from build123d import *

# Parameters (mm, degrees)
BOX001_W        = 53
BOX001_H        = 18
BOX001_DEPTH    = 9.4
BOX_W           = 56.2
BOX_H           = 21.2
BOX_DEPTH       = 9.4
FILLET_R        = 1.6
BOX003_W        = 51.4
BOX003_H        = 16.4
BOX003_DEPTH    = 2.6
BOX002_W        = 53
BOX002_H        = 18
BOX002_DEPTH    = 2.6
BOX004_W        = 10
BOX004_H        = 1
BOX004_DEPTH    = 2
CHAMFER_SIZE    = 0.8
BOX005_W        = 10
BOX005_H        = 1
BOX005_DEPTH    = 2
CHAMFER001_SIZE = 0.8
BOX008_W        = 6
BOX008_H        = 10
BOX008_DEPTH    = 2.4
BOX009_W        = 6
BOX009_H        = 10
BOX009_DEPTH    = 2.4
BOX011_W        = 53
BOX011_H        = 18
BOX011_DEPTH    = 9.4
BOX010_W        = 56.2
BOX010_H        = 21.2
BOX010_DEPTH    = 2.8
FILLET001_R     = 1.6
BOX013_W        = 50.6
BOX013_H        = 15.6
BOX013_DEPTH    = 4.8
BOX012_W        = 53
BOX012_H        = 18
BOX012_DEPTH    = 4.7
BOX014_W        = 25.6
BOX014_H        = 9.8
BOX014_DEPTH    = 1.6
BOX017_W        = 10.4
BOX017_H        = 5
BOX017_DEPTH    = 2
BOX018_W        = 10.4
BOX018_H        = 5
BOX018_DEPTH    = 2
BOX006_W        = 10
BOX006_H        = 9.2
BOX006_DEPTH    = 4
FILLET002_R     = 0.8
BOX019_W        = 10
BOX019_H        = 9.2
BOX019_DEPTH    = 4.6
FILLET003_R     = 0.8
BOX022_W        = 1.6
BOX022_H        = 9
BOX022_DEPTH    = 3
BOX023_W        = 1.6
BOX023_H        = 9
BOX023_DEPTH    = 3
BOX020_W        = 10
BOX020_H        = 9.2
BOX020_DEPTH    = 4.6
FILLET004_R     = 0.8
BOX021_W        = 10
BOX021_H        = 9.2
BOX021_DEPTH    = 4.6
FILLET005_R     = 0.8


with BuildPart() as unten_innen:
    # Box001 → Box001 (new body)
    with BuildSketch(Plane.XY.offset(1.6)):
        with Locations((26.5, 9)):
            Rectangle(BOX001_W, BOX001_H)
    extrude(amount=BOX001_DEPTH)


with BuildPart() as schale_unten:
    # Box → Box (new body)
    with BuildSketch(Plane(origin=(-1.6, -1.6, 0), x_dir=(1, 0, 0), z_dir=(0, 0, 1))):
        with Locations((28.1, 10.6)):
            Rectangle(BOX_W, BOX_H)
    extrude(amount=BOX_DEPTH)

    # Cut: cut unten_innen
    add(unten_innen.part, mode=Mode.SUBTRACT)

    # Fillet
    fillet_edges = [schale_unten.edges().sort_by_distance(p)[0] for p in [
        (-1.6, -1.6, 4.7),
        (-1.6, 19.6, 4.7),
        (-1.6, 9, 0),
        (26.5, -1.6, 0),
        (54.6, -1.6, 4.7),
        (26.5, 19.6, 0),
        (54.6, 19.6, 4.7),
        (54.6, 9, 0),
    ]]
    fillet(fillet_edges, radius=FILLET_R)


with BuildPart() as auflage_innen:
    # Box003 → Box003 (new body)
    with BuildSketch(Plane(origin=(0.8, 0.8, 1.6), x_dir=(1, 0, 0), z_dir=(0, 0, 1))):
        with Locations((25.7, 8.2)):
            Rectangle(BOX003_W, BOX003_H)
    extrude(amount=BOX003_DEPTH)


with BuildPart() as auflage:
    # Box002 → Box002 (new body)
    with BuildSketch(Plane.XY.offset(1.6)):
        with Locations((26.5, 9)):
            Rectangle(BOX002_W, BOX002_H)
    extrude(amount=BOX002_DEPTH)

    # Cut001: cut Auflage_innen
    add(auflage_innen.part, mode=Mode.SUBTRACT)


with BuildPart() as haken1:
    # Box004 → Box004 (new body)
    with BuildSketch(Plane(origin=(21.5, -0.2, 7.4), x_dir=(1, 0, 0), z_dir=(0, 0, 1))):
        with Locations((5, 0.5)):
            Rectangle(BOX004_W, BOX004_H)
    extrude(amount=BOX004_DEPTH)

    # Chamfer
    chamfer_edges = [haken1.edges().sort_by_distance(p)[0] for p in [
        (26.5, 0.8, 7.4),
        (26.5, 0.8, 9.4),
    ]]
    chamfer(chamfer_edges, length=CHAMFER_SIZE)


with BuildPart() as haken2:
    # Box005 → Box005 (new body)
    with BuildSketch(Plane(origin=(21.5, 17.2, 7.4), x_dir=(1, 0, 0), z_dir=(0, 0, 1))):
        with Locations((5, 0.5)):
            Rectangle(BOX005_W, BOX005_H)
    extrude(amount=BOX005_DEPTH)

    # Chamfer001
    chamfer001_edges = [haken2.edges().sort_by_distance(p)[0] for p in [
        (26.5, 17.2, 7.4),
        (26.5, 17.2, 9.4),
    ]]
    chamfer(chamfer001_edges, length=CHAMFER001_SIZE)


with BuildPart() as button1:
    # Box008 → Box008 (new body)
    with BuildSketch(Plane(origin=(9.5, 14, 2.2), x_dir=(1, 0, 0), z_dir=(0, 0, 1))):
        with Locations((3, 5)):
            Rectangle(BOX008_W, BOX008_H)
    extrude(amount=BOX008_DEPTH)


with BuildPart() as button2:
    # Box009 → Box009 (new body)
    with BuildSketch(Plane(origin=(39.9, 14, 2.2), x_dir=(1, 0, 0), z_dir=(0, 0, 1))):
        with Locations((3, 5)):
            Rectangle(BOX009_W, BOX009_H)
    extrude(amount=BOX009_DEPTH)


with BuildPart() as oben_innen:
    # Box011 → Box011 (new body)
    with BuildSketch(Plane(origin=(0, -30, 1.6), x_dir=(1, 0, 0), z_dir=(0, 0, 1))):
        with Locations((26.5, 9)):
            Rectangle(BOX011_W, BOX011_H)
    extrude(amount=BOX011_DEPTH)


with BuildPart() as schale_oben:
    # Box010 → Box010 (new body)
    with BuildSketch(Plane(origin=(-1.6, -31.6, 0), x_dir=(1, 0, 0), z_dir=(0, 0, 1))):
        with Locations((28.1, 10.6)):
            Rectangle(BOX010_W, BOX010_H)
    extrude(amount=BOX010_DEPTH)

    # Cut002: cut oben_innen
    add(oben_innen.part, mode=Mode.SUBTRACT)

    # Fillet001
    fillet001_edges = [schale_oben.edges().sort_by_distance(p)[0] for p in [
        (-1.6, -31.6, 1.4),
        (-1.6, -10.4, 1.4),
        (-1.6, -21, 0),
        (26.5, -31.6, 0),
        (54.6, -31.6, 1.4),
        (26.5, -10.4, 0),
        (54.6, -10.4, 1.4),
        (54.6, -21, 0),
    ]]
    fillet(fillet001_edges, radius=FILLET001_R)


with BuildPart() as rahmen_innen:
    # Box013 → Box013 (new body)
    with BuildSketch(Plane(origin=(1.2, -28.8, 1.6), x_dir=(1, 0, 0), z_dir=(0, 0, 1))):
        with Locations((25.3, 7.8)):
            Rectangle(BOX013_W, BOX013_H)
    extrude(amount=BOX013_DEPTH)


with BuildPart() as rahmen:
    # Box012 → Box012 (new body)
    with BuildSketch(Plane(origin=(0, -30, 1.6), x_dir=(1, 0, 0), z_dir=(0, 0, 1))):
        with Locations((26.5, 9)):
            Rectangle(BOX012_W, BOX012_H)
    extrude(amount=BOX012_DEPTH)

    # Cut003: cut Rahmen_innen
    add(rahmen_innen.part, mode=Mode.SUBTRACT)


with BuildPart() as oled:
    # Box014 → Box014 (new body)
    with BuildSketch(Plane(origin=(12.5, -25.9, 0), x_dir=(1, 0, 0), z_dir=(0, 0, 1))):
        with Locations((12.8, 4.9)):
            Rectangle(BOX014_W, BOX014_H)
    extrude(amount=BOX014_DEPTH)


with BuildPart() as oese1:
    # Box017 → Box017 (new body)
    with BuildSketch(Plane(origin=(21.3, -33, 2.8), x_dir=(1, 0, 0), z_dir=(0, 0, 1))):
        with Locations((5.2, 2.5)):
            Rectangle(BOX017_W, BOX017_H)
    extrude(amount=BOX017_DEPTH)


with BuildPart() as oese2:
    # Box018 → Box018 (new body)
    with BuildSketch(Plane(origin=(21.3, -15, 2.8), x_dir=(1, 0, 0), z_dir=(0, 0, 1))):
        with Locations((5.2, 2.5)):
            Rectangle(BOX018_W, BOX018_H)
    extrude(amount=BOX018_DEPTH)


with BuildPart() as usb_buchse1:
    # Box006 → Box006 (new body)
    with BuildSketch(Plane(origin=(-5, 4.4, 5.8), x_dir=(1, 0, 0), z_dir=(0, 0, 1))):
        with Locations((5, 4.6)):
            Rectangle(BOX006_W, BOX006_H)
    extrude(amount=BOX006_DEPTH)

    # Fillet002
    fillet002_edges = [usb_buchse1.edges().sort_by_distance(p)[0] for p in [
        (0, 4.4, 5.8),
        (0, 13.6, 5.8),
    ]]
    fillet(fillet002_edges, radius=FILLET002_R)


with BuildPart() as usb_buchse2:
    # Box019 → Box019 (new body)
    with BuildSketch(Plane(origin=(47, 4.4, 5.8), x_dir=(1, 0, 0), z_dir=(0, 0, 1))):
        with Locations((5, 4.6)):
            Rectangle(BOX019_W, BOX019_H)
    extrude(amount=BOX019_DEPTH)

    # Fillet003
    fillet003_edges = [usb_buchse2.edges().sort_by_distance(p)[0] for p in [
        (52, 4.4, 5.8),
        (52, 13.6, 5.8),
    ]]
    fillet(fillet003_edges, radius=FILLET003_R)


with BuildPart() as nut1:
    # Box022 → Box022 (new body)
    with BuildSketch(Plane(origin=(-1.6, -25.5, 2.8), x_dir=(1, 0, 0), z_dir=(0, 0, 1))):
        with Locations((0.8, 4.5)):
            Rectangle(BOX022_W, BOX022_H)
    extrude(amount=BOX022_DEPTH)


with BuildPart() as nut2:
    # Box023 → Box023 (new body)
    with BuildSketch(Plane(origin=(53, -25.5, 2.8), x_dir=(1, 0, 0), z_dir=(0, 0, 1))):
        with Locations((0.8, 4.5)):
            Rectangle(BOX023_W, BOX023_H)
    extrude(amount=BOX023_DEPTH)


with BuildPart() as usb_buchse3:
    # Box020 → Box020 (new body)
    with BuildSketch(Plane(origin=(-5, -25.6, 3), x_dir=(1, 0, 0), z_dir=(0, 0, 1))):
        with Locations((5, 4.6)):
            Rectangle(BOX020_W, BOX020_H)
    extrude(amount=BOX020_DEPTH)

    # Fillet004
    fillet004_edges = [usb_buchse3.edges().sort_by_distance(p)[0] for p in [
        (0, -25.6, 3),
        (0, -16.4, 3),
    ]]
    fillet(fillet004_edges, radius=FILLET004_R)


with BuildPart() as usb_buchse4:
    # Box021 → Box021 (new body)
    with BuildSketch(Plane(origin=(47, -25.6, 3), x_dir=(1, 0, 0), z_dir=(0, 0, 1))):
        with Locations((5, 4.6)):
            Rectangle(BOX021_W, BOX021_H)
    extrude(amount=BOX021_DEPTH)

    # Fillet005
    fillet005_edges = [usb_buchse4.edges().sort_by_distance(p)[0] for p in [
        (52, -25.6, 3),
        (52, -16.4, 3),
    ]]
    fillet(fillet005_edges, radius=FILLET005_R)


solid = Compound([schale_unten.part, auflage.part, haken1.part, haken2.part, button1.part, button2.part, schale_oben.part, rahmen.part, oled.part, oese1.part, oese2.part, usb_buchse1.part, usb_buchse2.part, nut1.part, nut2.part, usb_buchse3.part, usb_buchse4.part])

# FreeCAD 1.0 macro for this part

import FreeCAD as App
import Part
import Sketcher
Q = App.Units.Quantity


def edges_at(feature, points):
    """Names of the edges that pass closest to the given points."""
    edges = feature.Shape.Edges
    near = lambda p: min(range(len(edges)), key=lambda i: edges[i].distToShape(Part.Vertex(*p))[0])
    return sorted({f"Edge{near(p) + 1}" for p in points})

doc = App.newDocument("Part")
body = doc.addObject("PartDesign::Body", "Body")

# Sketch on XY plane
sketch1 = body.newObject("Sketcher::SketchObject", "Sketch")
sketch1.AttachmentSupport = (doc.getObject("XY_Plane"), [""])
sketch1.MapMode = "FlatFace"
sketch1.AttachmentOffset = App.Placement(App.Vector(0, 0, 1.6), App.Rotation())
sketch1.addGeometry([
    Part.LineSegment(App.Vector(0, 18, 0), App.Vector(0, 0, 0)),
    Part.LineSegment(App.Vector(0, 0, 0), App.Vector(53, 0, 0)),
    Part.LineSegment(App.Vector(53, 0, 0), App.Vector(53, 18, 0)),
    Part.LineSegment(App.Vector(53, 18, 0), App.Vector(0, 18, 0)),
], False)
sketch1.addConstraint([
    Sketcher.Constraint("Coincident", 0, 2, 1, 1),
    Sketcher.Constraint("Coincident", 1, 2, 2, 1),
    Sketcher.Constraint("Coincident", 2, 2, 3, 1),
    Sketcher.Constraint("Coincident", 3, 2, 0, 1),
    Sketcher.Constraint("Vertical", 0),
    Sketcher.Constraint("Horizontal", 1),
    Sketcher.Constraint("Vertical", 2),
    Sketcher.Constraint("Horizontal", 3),
    Sketcher.Constraint("Coincident", 0, 2, -1, 1),
    Sketcher.Constraint("DistanceX", 1, 1, 1, 2, Q("53 mm")),
    Sketcher.Constraint("DistanceY", 0, 2, 0, 1, Q("18 mm")),
])
pad1 = body.newObject("PartDesign::Pad", "Pad")
pad1.Profile = sketch1
pad1.Length = 9.4
body2 = doc.addObject("PartDesign::Body", "Body001")

# Sketch on XY plane
sketch2 = body2.newObject("Sketcher::SketchObject", "Sketch001")
sketch2.AttachmentSupport = (doc.getObject("XY_Plane001"), [""])
sketch2.MapMode = "FlatFace"
sketch2.addGeometry([
    Part.LineSegment(App.Vector(-1.6, 19.6, 0), App.Vector(-1.6, -1.6, 0)),
    Part.LineSegment(App.Vector(-1.6, -1.6, 0), App.Vector(54.6, -1.6, 0)),
    Part.LineSegment(App.Vector(54.6, -1.6, 0), App.Vector(54.6, 19.6, 0)),
    Part.LineSegment(App.Vector(54.6, 19.6, 0), App.Vector(-1.6, 19.6, 0)),
], False)
sketch2.addConstraint([
    Sketcher.Constraint("Coincident", 0, 2, 1, 1),
    Sketcher.Constraint("Coincident", 1, 2, 2, 1),
    Sketcher.Constraint("Coincident", 2, 2, 3, 1),
    Sketcher.Constraint("Coincident", 3, 2, 0, 1),
    Sketcher.Constraint("Vertical", 0),
    Sketcher.Constraint("Horizontal", 1),
    Sketcher.Constraint("Vertical", 2),
    Sketcher.Constraint("Horizontal", 3),
    Sketcher.Constraint("DistanceX", 1, 1, 1, 2, Q("56.2 mm")),
    Sketcher.Constraint("DistanceY", 0, 2, 0, 1, Q("21.2 mm")),
    Sketcher.Constraint("DistanceX", 0, 2, -1, 1, Q("1.6 mm")),
    Sketcher.Constraint("DistanceY", 0, 2, -1, 1, Q("1.6 mm")),
])
pad2 = body2.newObject("PartDesign::Pad", "Pad001")
pad2.Profile = sketch2
pad2.Length = 9.4
doc.recompute()

boolean = body2.newObject("PartDesign::Boolean", "Boolean")
boolean.Type = "Cut"
boolean.addObjects([body])
doc.recompute()

fillet = body2.newObject("PartDesign::Fillet", "Fillet")
fillet.Base = (boolean, edges_at(boolean, [
    (-1.6, -1.6, 4.7),
    (-1.6, 19.6, 4.7),
    (-1.6, 9, 0),
    (26.5, -1.6, 0),
    (54.6, -1.6, 4.7),
    (26.5, 19.6, 0),
    (54.6, 19.6, 4.7),
    (54.6, 9, 0),
]))
fillet.Radius = 1.6
body3 = doc.addObject("PartDesign::Body", "Body002")

# Sketch on XY plane
sketch3 = body3.newObject("Sketcher::SketchObject", "Sketch002")
sketch3.AttachmentSupport = (doc.getObject("XY_Plane002"), [""])
sketch3.MapMode = "FlatFace"
sketch3.AttachmentOffset = App.Placement(App.Vector(0, 0, 1.6), App.Rotation())
sketch3.addGeometry([
    Part.LineSegment(App.Vector(0.8, 17.2, 0), App.Vector(0.8, 0.8, 0)),
    Part.LineSegment(App.Vector(0.8, 0.8, 0), App.Vector(52.2, 0.8, 0)),
    Part.LineSegment(App.Vector(52.2, 0.8, 0), App.Vector(52.2, 17.2, 0)),
    Part.LineSegment(App.Vector(52.2, 17.2, 0), App.Vector(0.8, 17.2, 0)),
], False)
sketch3.addConstraint([
    Sketcher.Constraint("Coincident", 0, 2, 1, 1),
    Sketcher.Constraint("Coincident", 1, 2, 2, 1),
    Sketcher.Constraint("Coincident", 2, 2, 3, 1),
    Sketcher.Constraint("Coincident", 3, 2, 0, 1),
    Sketcher.Constraint("Vertical", 0),
    Sketcher.Constraint("Horizontal", 1),
    Sketcher.Constraint("Vertical", 2),
    Sketcher.Constraint("Horizontal", 3),
    Sketcher.Constraint("DistanceX", 1, 1, 1, 2, Q("51.4 mm")),
    Sketcher.Constraint("DistanceY", 0, 2, 0, 1, Q("16.4 mm")),
    Sketcher.Constraint("DistanceX", -1, 1, 0, 2, Q("0.8 mm")),
    Sketcher.Constraint("DistanceY", -1, 1, 0, 2, Q("0.8 mm")),
])
pad3 = body3.newObject("PartDesign::Pad", "Pad002")
pad3.Profile = sketch3
pad3.Length = 2.6
body4 = doc.addObject("PartDesign::Body", "Body003")

# Sketch on XY plane
sketch4 = body4.newObject("Sketcher::SketchObject", "Sketch003")
sketch4.AttachmentSupport = (doc.getObject("XY_Plane003"), [""])
sketch4.MapMode = "FlatFace"
sketch4.AttachmentOffset = App.Placement(App.Vector(0, 0, 1.6), App.Rotation())
sketch4.addGeometry([
    Part.LineSegment(App.Vector(0, 18, 0), App.Vector(0, 0, 0)),
    Part.LineSegment(App.Vector(0, 0, 0), App.Vector(53, 0, 0)),
    Part.LineSegment(App.Vector(53, 0, 0), App.Vector(53, 18, 0)),
    Part.LineSegment(App.Vector(53, 18, 0), App.Vector(0, 18, 0)),
], False)
sketch4.addConstraint([
    Sketcher.Constraint("Coincident", 0, 2, 1, 1),
    Sketcher.Constraint("Coincident", 1, 2, 2, 1),
    Sketcher.Constraint("Coincident", 2, 2, 3, 1),
    Sketcher.Constraint("Coincident", 3, 2, 0, 1),
    Sketcher.Constraint("Vertical", 0),
    Sketcher.Constraint("Horizontal", 1),
    Sketcher.Constraint("Vertical", 2),
    Sketcher.Constraint("Horizontal", 3),
    Sketcher.Constraint("Coincident", 0, 2, -1, 1),
    Sketcher.Constraint("DistanceX", 1, 1, 1, 2, Q("53 mm")),
    Sketcher.Constraint("DistanceY", 0, 2, 0, 1, Q("18 mm")),
])
pad4 = body4.newObject("PartDesign::Pad", "Pad003")
pad4.Profile = sketch4
pad4.Length = 2.6
doc.recompute()

boolean2 = body4.newObject("PartDesign::Boolean", "Boolean001")
boolean2.Type = "Cut"
boolean2.addObjects([body3])
body5 = doc.addObject("PartDesign::Body", "Body004")

# Sketch on XY plane
sketch5 = body5.newObject("Sketcher::SketchObject", "Sketch004")
sketch5.AttachmentSupport = (doc.getObject("XY_Plane004"), [""])
sketch5.MapMode = "FlatFace"
sketch5.AttachmentOffset = App.Placement(App.Vector(0, 0, 7.4), App.Rotation())
sketch5.addGeometry([
    Part.LineSegment(App.Vector(21.5, 0.8, 0), App.Vector(21.5, -0.2, 0)),
    Part.LineSegment(App.Vector(21.5, -0.2, 0), App.Vector(31.5, -0.2, 0)),
    Part.LineSegment(App.Vector(31.5, -0.2, 0), App.Vector(31.5, 0.8, 0)),
    Part.LineSegment(App.Vector(31.5, 0.8, 0), App.Vector(21.5, 0.8, 0)),
], False)
sketch5.addConstraint([
    Sketcher.Constraint("Coincident", 0, 2, 1, 1),
    Sketcher.Constraint("Coincident", 1, 2, 2, 1),
    Sketcher.Constraint("Coincident", 2, 2, 3, 1),
    Sketcher.Constraint("Coincident", 3, 2, 0, 1),
    Sketcher.Constraint("Vertical", 0),
    Sketcher.Constraint("Horizontal", 1),
    Sketcher.Constraint("Vertical", 2),
    Sketcher.Constraint("Horizontal", 3),
    Sketcher.Constraint("DistanceX", 1, 1, 1, 2, Q("10 mm")),
    Sketcher.Constraint("DistanceY", 0, 2, 0, 1, Q("1 mm")),
    Sketcher.Constraint("DistanceX", -1, 1, 0, 2, Q("21.5 mm")),
    Sketcher.Constraint("DistanceY", 0, 2, -1, 1, Q("0.2 mm")),
])
pad5 = body5.newObject("PartDesign::Pad", "Pad004")
pad5.Profile = sketch5
pad5.Length = 2
doc.recompute()

chamfer = body5.newObject("PartDesign::Chamfer", "Chamfer")
chamfer.Base = (pad5, edges_at(pad5, [(26.5, 0.8, 7.4), (26.5, 0.8, 9.4)]))
chamfer.Size = 0.8
body6 = doc.addObject("PartDesign::Body", "Body005")

# Sketch on XY plane
sketch6 = body6.newObject("Sketcher::SketchObject", "Sketch005")
sketch6.AttachmentSupport = (doc.getObject("XY_Plane005"), [""])
sketch6.MapMode = "FlatFace"
sketch6.AttachmentOffset = App.Placement(App.Vector(0, 0, 7.4), App.Rotation())
sketch6.addGeometry([
    Part.LineSegment(App.Vector(21.5, 18.2, 0), App.Vector(21.5, 17.2, 0)),
    Part.LineSegment(App.Vector(21.5, 17.2, 0), App.Vector(31.5, 17.2, 0)),
    Part.LineSegment(App.Vector(31.5, 17.2, 0), App.Vector(31.5, 18.2, 0)),
    Part.LineSegment(App.Vector(31.5, 18.2, 0), App.Vector(21.5, 18.2, 0)),
], False)
sketch6.addConstraint([
    Sketcher.Constraint("Coincident", 0, 2, 1, 1),
    Sketcher.Constraint("Coincident", 1, 2, 2, 1),
    Sketcher.Constraint("Coincident", 2, 2, 3, 1),
    Sketcher.Constraint("Coincident", 3, 2, 0, 1),
    Sketcher.Constraint("Vertical", 0),
    Sketcher.Constraint("Horizontal", 1),
    Sketcher.Constraint("Vertical", 2),
    Sketcher.Constraint("Horizontal", 3),
    Sketcher.Constraint("DistanceX", 1, 1, 1, 2, Q("10 mm")),
    Sketcher.Constraint("DistanceY", 0, 2, 0, 1, Q("1 mm")),
    Sketcher.Constraint("DistanceX", -1, 1, 0, 2, Q("21.5 mm")),
    Sketcher.Constraint("DistanceY", -1, 1, 0, 2, Q("17.2 mm")),
])
pad6 = body6.newObject("PartDesign::Pad", "Pad005")
pad6.Profile = sketch6
pad6.Length = 2
doc.recompute()

chamfer2 = body6.newObject("PartDesign::Chamfer", "Chamfer001")
chamfer2.Base = (pad6, edges_at(pad6, [(26.5, 17.2, 7.4), (26.5, 17.2, 9.4)]))
chamfer2.Size = 0.8
body7 = doc.addObject("PartDesign::Body", "Body006")

# Sketch on XY plane
sketch7 = body7.newObject("Sketcher::SketchObject", "Sketch006")
sketch7.AttachmentSupport = (doc.getObject("XY_Plane006"), [""])
sketch7.MapMode = "FlatFace"
sketch7.AttachmentOffset = App.Placement(App.Vector(0, 0, 2.2), App.Rotation())
sketch7.addGeometry([
    Part.LineSegment(App.Vector(9.5, 24, 0), App.Vector(9.5, 14, 0)),
    Part.LineSegment(App.Vector(9.5, 14, 0), App.Vector(15.5, 14, 0)),
    Part.LineSegment(App.Vector(15.5, 14, 0), App.Vector(15.5, 24, 0)),
    Part.LineSegment(App.Vector(15.5, 24, 0), App.Vector(9.5, 24, 0)),
], False)
sketch7.addConstraint([
    Sketcher.Constraint("Coincident", 0, 2, 1, 1),
    Sketcher.Constraint("Coincident", 1, 2, 2, 1),
    Sketcher.Constraint("Coincident", 2, 2, 3, 1),
    Sketcher.Constraint("Coincident", 3, 2, 0, 1),
    Sketcher.Constraint("Vertical", 0),
    Sketcher.Constraint("Horizontal", 1),
    Sketcher.Constraint("Vertical", 2),
    Sketcher.Constraint("Horizontal", 3),
    Sketcher.Constraint("DistanceX", 1, 1, 1, 2, Q("6 mm")),
    Sketcher.Constraint("DistanceY", 0, 2, 0, 1, Q("10 mm")),
    Sketcher.Constraint("DistanceY", -1, 1, 0, 2, Q("14 mm")),
    Sketcher.Constraint("DistanceX", -1, 1, 0, 2, Q("9.5 mm")),
])
pad7 = body7.newObject("PartDesign::Pad", "Pad006")
pad7.Profile = sketch7
pad7.Length = 2.4
body8 = doc.addObject("PartDesign::Body", "Body007")

# Sketch on XY plane
sketch8 = body8.newObject("Sketcher::SketchObject", "Sketch007")
sketch8.AttachmentSupport = (doc.getObject("XY_Plane007"), [""])
sketch8.MapMode = "FlatFace"
sketch8.AttachmentOffset = App.Placement(App.Vector(0, 0, 2.2), App.Rotation())
sketch8.addGeometry([
    Part.LineSegment(App.Vector(39.9, 24, 0), App.Vector(39.9, 14, 0)),
    Part.LineSegment(App.Vector(39.9, 14, 0), App.Vector(45.9, 14, 0)),
    Part.LineSegment(App.Vector(45.9, 14, 0), App.Vector(45.9, 24, 0)),
    Part.LineSegment(App.Vector(45.9, 24, 0), App.Vector(39.9, 24, 0)),
], False)
sketch8.addConstraint([
    Sketcher.Constraint("Coincident", 0, 2, 1, 1),
    Sketcher.Constraint("Coincident", 1, 2, 2, 1),
    Sketcher.Constraint("Coincident", 2, 2, 3, 1),
    Sketcher.Constraint("Coincident", 3, 2, 0, 1),
    Sketcher.Constraint("Vertical", 0),
    Sketcher.Constraint("Horizontal", 1),
    Sketcher.Constraint("Vertical", 2),
    Sketcher.Constraint("Horizontal", 3),
    Sketcher.Constraint("DistanceX", 1, 1, 1, 2, Q("6 mm")),
    Sketcher.Constraint("DistanceY", 0, 2, 0, 1, Q("10 mm")),
    Sketcher.Constraint("DistanceY", -1, 1, 0, 2, Q("14 mm")),
    Sketcher.Constraint("DistanceX", -1, 1, 0, 2, Q("39.9 mm")),
])
pad8 = body8.newObject("PartDesign::Pad", "Pad007")
pad8.Profile = sketch8
pad8.Length = 2.4
body9 = doc.addObject("PartDesign::Body", "Body008")

# Sketch on XY plane
sketch9 = body9.newObject("Sketcher::SketchObject", "Sketch008")
sketch9.AttachmentSupport = (doc.getObject("XY_Plane008"), [""])
sketch9.MapMode = "FlatFace"
sketch9.AttachmentOffset = App.Placement(App.Vector(0, 0, 1.6), App.Rotation())
sketch9.addGeometry([
    Part.LineSegment(App.Vector(0, -12, 0), App.Vector(0, -30, 0)),
    Part.LineSegment(App.Vector(0, -30, 0), App.Vector(53, -30, 0)),
    Part.LineSegment(App.Vector(53, -30, 0), App.Vector(53, -12, 0)),
    Part.LineSegment(App.Vector(53, -12, 0), App.Vector(0, -12, 0)),
], False)
sketch9.addConstraint([
    Sketcher.Constraint("Coincident", 0, 2, 1, 1),
    Sketcher.Constraint("Coincident", 1, 2, 2, 1),
    Sketcher.Constraint("Coincident", 2, 2, 3, 1),
    Sketcher.Constraint("Coincident", 3, 2, 0, 1),
    Sketcher.Constraint("Vertical", 0),
    Sketcher.Constraint("Horizontal", 1),
    Sketcher.Constraint("Vertical", 2),
    Sketcher.Constraint("Horizontal", 3),
    Sketcher.Constraint("PointOnObject", 0, 2, -2),
    Sketcher.Constraint("DistanceX", 1, 1, 1, 2, Q("53 mm")),
    Sketcher.Constraint("DistanceY", 0, 2, 0, 1, Q("18 mm")),
    Sketcher.Constraint("DistanceY", 0, 2, -1, 1, Q("30 mm")),
])
pad9 = body9.newObject("PartDesign::Pad", "Pad008")
pad9.Profile = sketch9
pad9.Length = 9.4
body10 = doc.addObject("PartDesign::Body", "Body009")

# Sketch on XY plane
sketch10 = body10.newObject("Sketcher::SketchObject", "Sketch009")
sketch10.AttachmentSupport = (doc.getObject("XY_Plane009"), [""])
sketch10.MapMode = "FlatFace"
sketch10.addGeometry([
    Part.LineSegment(App.Vector(-1.6, -10.4, 0), App.Vector(-1.6, -31.6, 0)),
    Part.LineSegment(App.Vector(-1.6, -31.6, 0), App.Vector(54.6, -31.6, 0)),
    Part.LineSegment(App.Vector(54.6, -31.6, 0), App.Vector(54.6, -10.4, 0)),
    Part.LineSegment(App.Vector(54.6, -10.4, 0), App.Vector(-1.6, -10.4, 0)),
], False)
sketch10.addConstraint([
    Sketcher.Constraint("Coincident", 0, 2, 1, 1),
    Sketcher.Constraint("Coincident", 1, 2, 2, 1),
    Sketcher.Constraint("Coincident", 2, 2, 3, 1),
    Sketcher.Constraint("Coincident", 3, 2, 0, 1),
    Sketcher.Constraint("Vertical", 0),
    Sketcher.Constraint("Horizontal", 1),
    Sketcher.Constraint("Vertical", 2),
    Sketcher.Constraint("Horizontal", 3),
    Sketcher.Constraint("DistanceX", 1, 1, 1, 2, Q("56.2 mm")),
    Sketcher.Constraint("DistanceY", 0, 2, 0, 1, Q("21.2 mm")),
    Sketcher.Constraint("DistanceX", 0, 2, -1, 1, Q("1.6 mm")),
    Sketcher.Constraint("DistanceY", 0, 2, -1, 1, Q("31.6 mm")),
])
pad10 = body10.newObject("PartDesign::Pad", "Pad009")
pad10.Profile = sketch10
pad10.Length = 2.8
doc.recompute()

boolean3 = body10.newObject("PartDesign::Boolean", "Boolean002")
boolean3.Type = "Cut"
boolean3.addObjects([body9])
doc.recompute()

fillet2 = body10.newObject("PartDesign::Fillet", "Fillet001")
fillet2.Base = (boolean3, edges_at(boolean3, [
    (-1.6, -31.6, 1.4),
    (-1.6, -10.4, 1.4),
    (-1.6, -21, 0),
    (26.5, -31.6, 0),
    (54.6, -31.6, 1.4),
    (26.5, -10.4, 0),
    (54.6, -10.4, 1.4),
    (54.6, -21, 0),
]))
fillet2.Radius = 1.6
body11 = doc.addObject("PartDesign::Body", "Body010")

# Sketch on XY plane
sketch11 = body11.newObject("Sketcher::SketchObject", "Sketch010")
sketch11.AttachmentSupport = (doc.getObject("XY_Plane010"), [""])
sketch11.MapMode = "FlatFace"
sketch11.AttachmentOffset = App.Placement(App.Vector(0, 0, 1.6), App.Rotation())
sketch11.addGeometry([
    Part.LineSegment(App.Vector(1.2, -13.2, 0), App.Vector(1.2, -28.8, 0)),
    Part.LineSegment(App.Vector(1.2, -28.8, 0), App.Vector(51.8, -28.8, 0)),
    Part.LineSegment(App.Vector(51.8, -28.8, 0), App.Vector(51.8, -13.2, 0)),
    Part.LineSegment(App.Vector(51.8, -13.2, 0), App.Vector(1.2, -13.2, 0)),
], False)
sketch11.addConstraint([
    Sketcher.Constraint("Coincident", 0, 2, 1, 1),
    Sketcher.Constraint("Coincident", 1, 2, 2, 1),
    Sketcher.Constraint("Coincident", 2, 2, 3, 1),
    Sketcher.Constraint("Coincident", 3, 2, 0, 1),
    Sketcher.Constraint("Vertical", 0),
    Sketcher.Constraint("Horizontal", 1),
    Sketcher.Constraint("Vertical", 2),
    Sketcher.Constraint("Horizontal", 3),
    Sketcher.Constraint("DistanceX", 1, 1, 1, 2, Q("50.6 mm")),
    Sketcher.Constraint("DistanceY", 0, 2, 0, 1, Q("15.6 mm")),
    Sketcher.Constraint("DistanceX", -1, 1, 0, 2, Q("1.2 mm")),
    Sketcher.Constraint("DistanceY", 0, 2, -1, 1, Q("28.8 mm")),
])
pad11 = body11.newObject("PartDesign::Pad", "Pad010")
pad11.Profile = sketch11
pad11.Length = 4.8
body12 = doc.addObject("PartDesign::Body", "Body011")

# Sketch on XY plane
sketch12 = body12.newObject("Sketcher::SketchObject", "Sketch011")
sketch12.AttachmentSupport = (doc.getObject("XY_Plane011"), [""])
sketch12.MapMode = "FlatFace"
sketch12.AttachmentOffset = App.Placement(App.Vector(0, 0, 1.6), App.Rotation())
sketch12.addGeometry([
    Part.LineSegment(App.Vector(0, -12, 0), App.Vector(0, -30, 0)),
    Part.LineSegment(App.Vector(0, -30, 0), App.Vector(53, -30, 0)),
    Part.LineSegment(App.Vector(53, -30, 0), App.Vector(53, -12, 0)),
    Part.LineSegment(App.Vector(53, -12, 0), App.Vector(0, -12, 0)),
], False)
sketch12.addConstraint([
    Sketcher.Constraint("Coincident", 0, 2, 1, 1),
    Sketcher.Constraint("Coincident", 1, 2, 2, 1),
    Sketcher.Constraint("Coincident", 2, 2, 3, 1),
    Sketcher.Constraint("Coincident", 3, 2, 0, 1),
    Sketcher.Constraint("Vertical", 0),
    Sketcher.Constraint("Horizontal", 1),
    Sketcher.Constraint("Vertical", 2),
    Sketcher.Constraint("Horizontal", 3),
    Sketcher.Constraint("PointOnObject", 0, 2, -2),
    Sketcher.Constraint("DistanceX", 1, 1, 1, 2, Q("53 mm")),
    Sketcher.Constraint("DistanceY", 0, 2, 0, 1, Q("18 mm")),
    Sketcher.Constraint("DistanceY", 0, 2, -1, 1, Q("30 mm")),
])
pad12 = body12.newObject("PartDesign::Pad", "Pad011")
pad12.Profile = sketch12
pad12.Length = 4.7
doc.recompute()

boolean4 = body12.newObject("PartDesign::Boolean", "Boolean003")
boolean4.Type = "Cut"
boolean4.addObjects([body11])
body13 = doc.addObject("PartDesign::Body", "Body012")

# Sketch on XY plane
sketch13 = body13.newObject("Sketcher::SketchObject", "Sketch012")
sketch13.AttachmentSupport = (doc.getObject("XY_Plane012"), [""])
sketch13.MapMode = "FlatFace"
sketch13.addGeometry([
    Part.LineSegment(App.Vector(12.5, -16.1, 0), App.Vector(12.5, -25.9, 0)),
    Part.LineSegment(App.Vector(12.5, -25.9, 0), App.Vector(38.1, -25.9, 0)),
    Part.LineSegment(App.Vector(38.1, -25.9, 0), App.Vector(38.1, -16.1, 0)),
    Part.LineSegment(App.Vector(38.1, -16.1, 0), App.Vector(12.5, -16.1, 0)),
], False)
sketch13.addConstraint([
    Sketcher.Constraint("Coincident", 0, 2, 1, 1),
    Sketcher.Constraint("Coincident", 1, 2, 2, 1),
    Sketcher.Constraint("Coincident", 2, 2, 3, 1),
    Sketcher.Constraint("Coincident", 3, 2, 0, 1),
    Sketcher.Constraint("Vertical", 0),
    Sketcher.Constraint("Horizontal", 1),
    Sketcher.Constraint("Vertical", 2),
    Sketcher.Constraint("Horizontal", 3),
    Sketcher.Constraint("DistanceX", 1, 1, 1, 2, Q("25.6 mm")),
    Sketcher.Constraint("DistanceY", 0, 2, 0, 1, Q("9.8 mm")),
    Sketcher.Constraint("DistanceX", -1, 1, 0, 2, Q("12.5 mm")),
    Sketcher.Constraint("DistanceY", 0, 2, -1, 1, Q("25.9 mm")),
])
pad13 = body13.newObject("PartDesign::Pad", "Pad012")
pad13.Profile = sketch13
pad13.Length = 1.6
body14 = doc.addObject("PartDesign::Body", "Body013")

# Sketch on XY plane
sketch14 = body14.newObject("Sketcher::SketchObject", "Sketch013")
sketch14.AttachmentSupport = (doc.getObject("XY_Plane013"), [""])
sketch14.MapMode = "FlatFace"
sketch14.AttachmentOffset = App.Placement(App.Vector(0, 0, 2.8), App.Rotation())
sketch14.addGeometry([
    Part.LineSegment(App.Vector(21.3, -28, 0), App.Vector(21.3, -33, 0)),
    Part.LineSegment(App.Vector(21.3, -33, 0), App.Vector(31.7, -33, 0)),
    Part.LineSegment(App.Vector(31.7, -33, 0), App.Vector(31.7, -28, 0)),
    Part.LineSegment(App.Vector(31.7, -28, 0), App.Vector(21.3, -28, 0)),
], False)
sketch14.addConstraint([
    Sketcher.Constraint("Coincident", 0, 2, 1, 1),
    Sketcher.Constraint("Coincident", 1, 2, 2, 1),
    Sketcher.Constraint("Coincident", 2, 2, 3, 1),
    Sketcher.Constraint("Coincident", 3, 2, 0, 1),
    Sketcher.Constraint("Vertical", 0),
    Sketcher.Constraint("Horizontal", 1),
    Sketcher.Constraint("Vertical", 2),
    Sketcher.Constraint("Horizontal", 3),
    Sketcher.Constraint("DistanceY", 0, 2, 0, 1, Q("5 mm")),
    Sketcher.Constraint("DistanceX", 1, 1, 1, 2, Q("10.4 mm")),
    Sketcher.Constraint("DistanceY", 0, 2, -1, 1, Q("33 mm")),
    Sketcher.Constraint("DistanceX", -1, 1, 0, 2, Q("21.3 mm")),
])
pad14 = body14.newObject("PartDesign::Pad", "Pad013")
pad14.Profile = sketch14
pad14.Length = 2
body15 = doc.addObject("PartDesign::Body", "Body014")

# Sketch on XY plane
sketch15 = body15.newObject("Sketcher::SketchObject", "Sketch014")
sketch15.AttachmentSupport = (doc.getObject("XY_Plane014"), [""])
sketch15.MapMode = "FlatFace"
sketch15.AttachmentOffset = App.Placement(App.Vector(0, 0, 2.8), App.Rotation())
sketch15.addGeometry([
    Part.LineSegment(App.Vector(21.3, -10, 0), App.Vector(21.3, -15, 0)),
    Part.LineSegment(App.Vector(21.3, -15, 0), App.Vector(31.7, -15, 0)),
    Part.LineSegment(App.Vector(31.7, -15, 0), App.Vector(31.7, -10, 0)),
    Part.LineSegment(App.Vector(31.7, -10, 0), App.Vector(21.3, -10, 0)),
], False)
sketch15.addConstraint([
    Sketcher.Constraint("Coincident", 0, 2, 1, 1),
    Sketcher.Constraint("Coincident", 1, 2, 2, 1),
    Sketcher.Constraint("Coincident", 2, 2, 3, 1),
    Sketcher.Constraint("Coincident", 3, 2, 0, 1),
    Sketcher.Constraint("Vertical", 0),
    Sketcher.Constraint("Horizontal", 1),
    Sketcher.Constraint("Vertical", 2),
    Sketcher.Constraint("Horizontal", 3),
    Sketcher.Constraint("DistanceY", 0, 2, 0, 1, Q("5 mm")),
    Sketcher.Constraint("DistanceX", 1, 1, 1, 2, Q("10.4 mm")),
    Sketcher.Constraint("DistanceY", 0, 2, -1, 1, Q("15 mm")),
    Sketcher.Constraint("DistanceX", -1, 1, 0, 2, Q("21.3 mm")),
])
pad15 = body15.newObject("PartDesign::Pad", "Pad014")
pad15.Profile = sketch15
pad15.Length = 2
body16 = doc.addObject("PartDesign::Body", "Body015")

# Sketch on XY plane
sketch16 = body16.newObject("Sketcher::SketchObject", "Sketch015")
sketch16.AttachmentSupport = (doc.getObject("XY_Plane015"), [""])
sketch16.MapMode = "FlatFace"
sketch16.AttachmentOffset = App.Placement(App.Vector(0, 0, 5.8), App.Rotation())
sketch16.addGeometry([
    Part.LineSegment(App.Vector(-5, 13.6, 0), App.Vector(-5, 4.4, 0)),
    Part.LineSegment(App.Vector(-5, 4.4, 0), App.Vector(5, 4.4, 0)),
    Part.LineSegment(App.Vector(5, 4.4, 0), App.Vector(5, 13.6, 0)),
    Part.LineSegment(App.Vector(5, 13.6, 0), App.Vector(-5, 13.6, 0)),
], False)
sketch16.addConstraint([
    Sketcher.Constraint("Coincident", 0, 2, 1, 1),
    Sketcher.Constraint("Coincident", 1, 2, 2, 1),
    Sketcher.Constraint("Coincident", 2, 2, 3, 1),
    Sketcher.Constraint("Coincident", 3, 2, 0, 1),
    Sketcher.Constraint("Vertical", 0),
    Sketcher.Constraint("Horizontal", 1),
    Sketcher.Constraint("Vertical", 2),
    Sketcher.Constraint("Horizontal", 3),
    Sketcher.Constraint("DistanceX", 1, 1, 1, 2, Q("10 mm")),
    Sketcher.Constraint("DistanceY", 0, 2, 0, 1, Q("9.2 mm")),
    Sketcher.Constraint("DistanceX", 0, 2, -1, 1, Q("5 mm")),
    Sketcher.Constraint("DistanceY", -1, 1, 0, 2, Q("4.4 mm")),
])
pad16 = body16.newObject("PartDesign::Pad", "Pad015")
pad16.Profile = sketch16
pad16.Length = 4
doc.recompute()

fillet3 = body16.newObject("PartDesign::Fillet", "Fillet002")
fillet3.Base = (pad16, edges_at(pad16, [(0, 4.4, 5.8), (0, 13.6, 5.8)]))
fillet3.Radius = 0.8
body17 = doc.addObject("PartDesign::Body", "Body016")

# Sketch on XY plane
sketch17 = body17.newObject("Sketcher::SketchObject", "Sketch016")
sketch17.AttachmentSupport = (doc.getObject("XY_Plane016"), [""])
sketch17.MapMode = "FlatFace"
sketch17.AttachmentOffset = App.Placement(App.Vector(0, 0, 5.8), App.Rotation())
sketch17.addGeometry([
    Part.LineSegment(App.Vector(47, 13.6, 0), App.Vector(47, 4.4, 0)),
    Part.LineSegment(App.Vector(47, 4.4, 0), App.Vector(57, 4.4, 0)),
    Part.LineSegment(App.Vector(57, 4.4, 0), App.Vector(57, 13.6, 0)),
    Part.LineSegment(App.Vector(57, 13.6, 0), App.Vector(47, 13.6, 0)),
], False)
sketch17.addConstraint([
    Sketcher.Constraint("Coincident", 0, 2, 1, 1),
    Sketcher.Constraint("Coincident", 1, 2, 2, 1),
    Sketcher.Constraint("Coincident", 2, 2, 3, 1),
    Sketcher.Constraint("Coincident", 3, 2, 0, 1),
    Sketcher.Constraint("Vertical", 0),
    Sketcher.Constraint("Horizontal", 1),
    Sketcher.Constraint("Vertical", 2),
    Sketcher.Constraint("Horizontal", 3),
    Sketcher.Constraint("DistanceX", 1, 1, 1, 2, Q("10 mm")),
    Sketcher.Constraint("DistanceY", 0, 2, 0, 1, Q("9.2 mm")),
    Sketcher.Constraint("DistanceX", -1, 1, 0, 2, Q("47 mm")),
    Sketcher.Constraint("DistanceY", -1, 1, 0, 2, Q("4.4 mm")),
])
pad17 = body17.newObject("PartDesign::Pad", "Pad016")
pad17.Profile = sketch17
pad17.Length = 4.6
doc.recompute()

fillet4 = body17.newObject("PartDesign::Fillet", "Fillet003")
fillet4.Base = (pad17, edges_at(pad17, [(52, 4.4, 5.8), (52, 13.6, 5.8)]))
fillet4.Radius = 0.8
body18 = doc.addObject("PartDesign::Body", "Body017")

# Sketch on XY plane
sketch18 = body18.newObject("Sketcher::SketchObject", "Sketch017")
sketch18.AttachmentSupport = (doc.getObject("XY_Plane017"), [""])
sketch18.MapMode = "FlatFace"
sketch18.AttachmentOffset = App.Placement(App.Vector(0, 0, 2.8), App.Rotation())
sketch18.addGeometry([
    Part.LineSegment(App.Vector(-1.6, -16.5, 0), App.Vector(-1.6, -25.5, 0)),
    Part.LineSegment(App.Vector(-1.6, -25.5, 0), App.Vector(0, -25.5, 0)),
    Part.LineSegment(App.Vector(0, -25.5, 0), App.Vector(0, -16.5, 0)),
    Part.LineSegment(App.Vector(0, -16.5, 0), App.Vector(-1.6, -16.5, 0)),
], False)
sketch18.addConstraint([
    Sketcher.Constraint("Coincident", 0, 2, 1, 1),
    Sketcher.Constraint("Coincident", 1, 2, 2, 1),
    Sketcher.Constraint("Coincident", 2, 2, 3, 1),
    Sketcher.Constraint("Coincident", 3, 2, 0, 1),
    Sketcher.Constraint("Vertical", 0),
    Sketcher.Constraint("Horizontal", 1),
    Sketcher.Constraint("Vertical", 2),
    Sketcher.Constraint("Horizontal", 3),
    Sketcher.Constraint("PointOnObject", 1, 2, -2),
    Sketcher.Constraint("DistanceY", 0, 2, 0, 1, Q("9 mm")),
    Sketcher.Constraint("DistanceX", 1, 1, 1, 2, Q("1.6 mm")),
    Sketcher.Constraint("DistanceY", 0, 2, -1, 1, Q("25.5 mm")),
])
pad18 = body18.newObject("PartDesign::Pad", "Pad017")
pad18.Profile = sketch18
pad18.Length = 3
body19 = doc.addObject("PartDesign::Body", "Body018")

# Sketch on XY plane
sketch19 = body19.newObject("Sketcher::SketchObject", "Sketch018")
sketch19.AttachmentSupport = (doc.getObject("XY_Plane018"), [""])
sketch19.MapMode = "FlatFace"
sketch19.AttachmentOffset = App.Placement(App.Vector(0, 0, 2.8), App.Rotation())
sketch19.addGeometry([
    Part.LineSegment(App.Vector(53, -16.5, 0), App.Vector(53, -25.5, 0)),
    Part.LineSegment(App.Vector(53, -25.5, 0), App.Vector(54.6, -25.5, 0)),
    Part.LineSegment(App.Vector(54.6, -25.5, 0), App.Vector(54.6, -16.5, 0)),
    Part.LineSegment(App.Vector(54.6, -16.5, 0), App.Vector(53, -16.5, 0)),
], False)
sketch19.addConstraint([
    Sketcher.Constraint("Coincident", 0, 2, 1, 1),
    Sketcher.Constraint("Coincident", 1, 2, 2, 1),
    Sketcher.Constraint("Coincident", 2, 2, 3, 1),
    Sketcher.Constraint("Coincident", 3, 2, 0, 1),
    Sketcher.Constraint("Vertical", 0),
    Sketcher.Constraint("Horizontal", 1),
    Sketcher.Constraint("Vertical", 2),
    Sketcher.Constraint("Horizontal", 3),
    Sketcher.Constraint("DistanceY", 0, 2, 0, 1, Q("9 mm")),
    Sketcher.Constraint("DistanceX", 1, 1, 1, 2, Q("1.6 mm")),
    Sketcher.Constraint("DistanceX", -1, 1, 0, 2, Q("53 mm")),
    Sketcher.Constraint("DistanceY", 0, 2, -1, 1, Q("25.5 mm")),
])
pad19 = body19.newObject("PartDesign::Pad", "Pad018")
pad19.Profile = sketch19
pad19.Length = 3
body20 = doc.addObject("PartDesign::Body", "Body019")

# Sketch on XY plane
sketch20 = body20.newObject("Sketcher::SketchObject", "Sketch019")
sketch20.AttachmentSupport = (doc.getObject("XY_Plane019"), [""])
sketch20.MapMode = "FlatFace"
sketch20.AttachmentOffset = App.Placement(App.Vector(0, 0, 3), App.Rotation())
sketch20.addGeometry([
    Part.LineSegment(App.Vector(-5, -16.4, 0), App.Vector(-5, -25.6, 0)),
    Part.LineSegment(App.Vector(-5, -25.6, 0), App.Vector(5, -25.6, 0)),
    Part.LineSegment(App.Vector(5, -25.6, 0), App.Vector(5, -16.4, 0)),
    Part.LineSegment(App.Vector(5, -16.4, 0), App.Vector(-5, -16.4, 0)),
], False)
sketch20.addConstraint([
    Sketcher.Constraint("Coincident", 0, 2, 1, 1),
    Sketcher.Constraint("Coincident", 1, 2, 2, 1),
    Sketcher.Constraint("Coincident", 2, 2, 3, 1),
    Sketcher.Constraint("Coincident", 3, 2, 0, 1),
    Sketcher.Constraint("Vertical", 0),
    Sketcher.Constraint("Horizontal", 1),
    Sketcher.Constraint("Vertical", 2),
    Sketcher.Constraint("Horizontal", 3),
    Sketcher.Constraint("DistanceX", 1, 1, 1, 2, Q("10 mm")),
    Sketcher.Constraint("DistanceY", 0, 2, 0, 1, Q("9.2 mm")),
    Sketcher.Constraint("DistanceX", 0, 2, -1, 1, Q("5 mm")),
    Sketcher.Constraint("DistanceY", 0, 2, -1, 1, Q("25.6 mm")),
])
pad20 = body20.newObject("PartDesign::Pad", "Pad019")
pad20.Profile = sketch20
pad20.Length = 4.6
doc.recompute()

fillet5 = body20.newObject("PartDesign::Fillet", "Fillet004")
fillet5.Base = (pad20, edges_at(pad20, [(0, -25.6, 3), (0, -16.4, 3)]))
fillet5.Radius = 0.8
body21 = doc.addObject("PartDesign::Body", "Body020")

# Sketch on XY plane
sketch21 = body21.newObject("Sketcher::SketchObject", "Sketch020")
sketch21.AttachmentSupport = (doc.getObject("XY_Plane020"), [""])
sketch21.MapMode = "FlatFace"
sketch21.AttachmentOffset = App.Placement(App.Vector(0, 0, 3), App.Rotation())
sketch21.addGeometry([
    Part.LineSegment(App.Vector(47, -16.4, 0), App.Vector(47, -25.6, 0)),
    Part.LineSegment(App.Vector(47, -25.6, 0), App.Vector(57, -25.6, 0)),
    Part.LineSegment(App.Vector(57, -25.6, 0), App.Vector(57, -16.4, 0)),
    Part.LineSegment(App.Vector(57, -16.4, 0), App.Vector(47, -16.4, 0)),
], False)
sketch21.addConstraint([
    Sketcher.Constraint("Coincident", 0, 2, 1, 1),
    Sketcher.Constraint("Coincident", 1, 2, 2, 1),
    Sketcher.Constraint("Coincident", 2, 2, 3, 1),
    Sketcher.Constraint("Coincident", 3, 2, 0, 1),
    Sketcher.Constraint("Vertical", 0),
    Sketcher.Constraint("Horizontal", 1),
    Sketcher.Constraint("Vertical", 2),
    Sketcher.Constraint("Horizontal", 3),
    Sketcher.Constraint("DistanceX", 1, 1, 1, 2, Q("10 mm")),
    Sketcher.Constraint("DistanceY", 0, 2, 0, 1, Q("9.2 mm")),
    Sketcher.Constraint("DistanceX", -1, 1, 0, 2, Q("47 mm")),
    Sketcher.Constraint("DistanceY", 0, 2, -1, 1, Q("25.6 mm")),
])
pad21 = body21.newObject("PartDesign::Pad", "Pad020")
pad21.Profile = sketch21
pad21.Length = 4.6
doc.recompute()

fillet6 = body21.newObject("PartDesign::Fillet", "Fillet005")
fillet6.Base = (pad21, edges_at(pad21, [(52, -25.6, 3), (52, -16.4, 3)]))
fillet6.Radius = 0.8

doc.recompute()
